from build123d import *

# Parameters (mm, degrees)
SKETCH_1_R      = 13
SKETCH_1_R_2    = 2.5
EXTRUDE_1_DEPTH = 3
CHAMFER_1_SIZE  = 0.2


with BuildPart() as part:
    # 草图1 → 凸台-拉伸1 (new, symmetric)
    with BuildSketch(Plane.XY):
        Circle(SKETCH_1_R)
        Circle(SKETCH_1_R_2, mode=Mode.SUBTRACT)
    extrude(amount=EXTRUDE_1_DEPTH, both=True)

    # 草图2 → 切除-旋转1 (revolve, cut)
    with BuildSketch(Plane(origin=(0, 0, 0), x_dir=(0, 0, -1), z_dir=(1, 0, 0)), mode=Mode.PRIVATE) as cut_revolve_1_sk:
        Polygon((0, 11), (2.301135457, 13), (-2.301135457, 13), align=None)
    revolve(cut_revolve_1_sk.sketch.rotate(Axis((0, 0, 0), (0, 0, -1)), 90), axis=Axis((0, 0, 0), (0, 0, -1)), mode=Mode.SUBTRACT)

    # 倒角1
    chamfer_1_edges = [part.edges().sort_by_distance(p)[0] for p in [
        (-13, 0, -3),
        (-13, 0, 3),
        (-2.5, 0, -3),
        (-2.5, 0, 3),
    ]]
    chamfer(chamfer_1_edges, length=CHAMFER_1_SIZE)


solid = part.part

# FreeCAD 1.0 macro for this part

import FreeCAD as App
import Part
import Sketcher
from FreeCAD import Vector


def edges_at(feature, points):
    """Names of the edges that pass closest to the given points."""
    edges = feature.Shape.Edges
    near = lambda p: min(range(len(edges)), key=lambda i: edges[i].distToShape(Part.Vertex(*p))[0])
    return sorted({f"Edge{near(p) + 1}" for p in points})


def add_polygon(sketch, points):
    """Adds a closed chain of lines whose ends are joined by coincident constraints."""
    first, n = sketch.GeometryCount, len(points)
    for a, b in zip(points, points[1:] + points[:1]):
        sketch.addGeometry(Part.LineSegment(App.Vector(*a, 0), App.Vector(*b, 0)), False)
    for i in range(n):
        sketch.addConstraint(Sketcher.Constraint("Coincident", first + i, 2, first + (i + 1) % n, 1))

doc = App.newDocument("Part")
body = doc.addObject("PartDesign::Body", "Body")

# Sketch on XY plane
sketch1 = body.newObject("Sketcher::SketchObject", "Sketch")
sketch1.AttachmentSupport = (doc.getObject("XY_Plane"), [""])
sketch1.MapMode = "FlatFace"
sketch1.addGeometry([
    Part.Circle(Vector(0, 0, 0), Vector(0, 0, 1), 13),
    Part.Circle(Vector(0, 0, 0), Vector(0, 0, 1), 2.5),
], False)
sketch1.addConstraint([
    Sketcher.Constraint("Coincident", 0, 3, -1, 1),
    Sketcher.Constraint("Coincident", 1, 3, -1, 1),
    Sketcher.Constraint("Diameter", 0, 26.0),
    Sketcher.Constraint("Diameter", 1, 5.0),
])
pad1 = body.newObject("PartDesign::Pad", "Pad")
pad1.Profile = sketch1
pad1.Length = 6
pad1.Midplane = True

# Sketch on YZ plane
sketch2 = body.newObject("Sketcher::SketchObject", "Sketch001")
sketch2.AttachmentSupport = (doc.getObject("YZ_Plane"), [""])
sketch2.MapMode = "FlatFace"
add_polygon(sketch2, [(11, 0), (13, -2.3), (13, 2.3)])  # lines 0-2
sketch2.addConstraint([
    Sketcher.Constraint("Vertical", 1),
    Sketcher.Constraint("PointOnObject", 2, 2, -1),
    Sketcher.Constraint("Equal", 0, 2),
    Sketcher.Constraint("DistanceX", -1, 1, 0, 2, 13.0),
    Sketcher.Constraint("DistanceX", -1, 1, 2, 2, 11.0),
    Sketcher.Constraint("DistanceY", 1, 1, 1, 2, 4.602271),
])
groove = body.newObject("PartDesign::Groove", "Groove")
groove.Profile = sketch2
groove.ReferenceAxis = (sketch2, ["V_Axis"])
groove.Angle = 360
doc.recompute()

chamfer = body.newObject("PartDesign::Chamfer", "Chamfer")
chamfer.Base = (groove, edges_at(groove, [
    (-13, 0, -3),
    (-13, 0, 3),
    (-2.5, 0, -3),
    (-2.5, 0, 3),
]))
chamfer.Size = 0.2

doc.recompute()
